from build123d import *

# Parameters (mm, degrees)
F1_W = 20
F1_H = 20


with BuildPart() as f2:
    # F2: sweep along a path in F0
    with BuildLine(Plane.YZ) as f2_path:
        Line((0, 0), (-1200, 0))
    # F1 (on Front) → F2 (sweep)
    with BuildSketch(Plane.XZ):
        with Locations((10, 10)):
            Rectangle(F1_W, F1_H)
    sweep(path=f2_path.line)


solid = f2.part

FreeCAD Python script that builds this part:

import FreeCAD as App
import Part
import Sketcher
from FreeCAD import Vector
Q = App.Units.Quantity


def add_polygon(sketch, points):
    """Adds a closed chain of lines whose ends are joined by coincident constraints."""
    first, n = sketch.GeometryCount, len(points)
    for a, b in zip(points, points[1:] + points[:1]):
        sketch.addGeometry(Part.LineSegment(App.Vector(*a, 0), App.Vector(*b, 0)), False)
    for i in range(n):
        sketch.addConstraint(Sketcher.Constraint("Coincident", first + i, 2, first + (i + 1) % n, 1))

doc = App.newDocument("Part")
body = doc.addObject("PartDesign::Body", "Body")

# Sketch on XZ plane
sketch1 = body.newObject("Sketcher::SketchObject", "Sketch")
sketch1.AttachmentSupport = (doc.getObject("XZ_Plane"), [""])
sketch1.MapMode = "FlatFace"
add_polygon(sketch1, [(0, 20), (0, 0), (20, 0), (20, 20)])  # lines 0-3
sketch1.addConstraint(Sketcher.Constraint("Vertical", 0))
sketch1.addConstraint(Sketcher.Constraint("Horizontal", 1))
sketch1.addConstraint(Sketcher.Constraint("Vertical", 2))
sketch1.addConstraint(Sketcher.Constraint("Horizontal", 3))
sketch1.addConstraint(Sketcher.Constraint("Coincident", 0, 2, -1, 1))
sketch1.addConstraint(Sketcher.Constraint("Equal", 3, 0))
sketch1.addConstraint(Sketcher.Constraint("DistanceX", 1, 1, 1, 2, Q("20 mm")))

# Sketch on XY plane
sketch2 = body.newObject("Sketcher::SketchObject", "Sketch001")
sketch2.AttachmentSupport = (doc.getObject("XY_Plane"), [""])
sketch2.MapMode = "FlatFace"
sketch2.addGeometry(Part.LineSegment(Vector(0, 0, 0), Vector(0, -1200, 0)), False)
sketch2.addConstraint(Sketcher.Constraint("Vertical", 0))
sketch2.addConstraint(Sketcher.Constraint("Coincident", 0, 1, -1, 1))
sketch2.addConstraint(Sketcher.Constraint("DistanceY", 0, 2, 0, 1, Q("1200 mm")))
doc.recompute()

additivepipe = body.newObject("PartDesign::AdditivePipe", "AdditivePipe")
additivepipe.Profile = sketch1
additivepipe.Spine = (sketch2, ["Edge1"])

doc.recompute()
